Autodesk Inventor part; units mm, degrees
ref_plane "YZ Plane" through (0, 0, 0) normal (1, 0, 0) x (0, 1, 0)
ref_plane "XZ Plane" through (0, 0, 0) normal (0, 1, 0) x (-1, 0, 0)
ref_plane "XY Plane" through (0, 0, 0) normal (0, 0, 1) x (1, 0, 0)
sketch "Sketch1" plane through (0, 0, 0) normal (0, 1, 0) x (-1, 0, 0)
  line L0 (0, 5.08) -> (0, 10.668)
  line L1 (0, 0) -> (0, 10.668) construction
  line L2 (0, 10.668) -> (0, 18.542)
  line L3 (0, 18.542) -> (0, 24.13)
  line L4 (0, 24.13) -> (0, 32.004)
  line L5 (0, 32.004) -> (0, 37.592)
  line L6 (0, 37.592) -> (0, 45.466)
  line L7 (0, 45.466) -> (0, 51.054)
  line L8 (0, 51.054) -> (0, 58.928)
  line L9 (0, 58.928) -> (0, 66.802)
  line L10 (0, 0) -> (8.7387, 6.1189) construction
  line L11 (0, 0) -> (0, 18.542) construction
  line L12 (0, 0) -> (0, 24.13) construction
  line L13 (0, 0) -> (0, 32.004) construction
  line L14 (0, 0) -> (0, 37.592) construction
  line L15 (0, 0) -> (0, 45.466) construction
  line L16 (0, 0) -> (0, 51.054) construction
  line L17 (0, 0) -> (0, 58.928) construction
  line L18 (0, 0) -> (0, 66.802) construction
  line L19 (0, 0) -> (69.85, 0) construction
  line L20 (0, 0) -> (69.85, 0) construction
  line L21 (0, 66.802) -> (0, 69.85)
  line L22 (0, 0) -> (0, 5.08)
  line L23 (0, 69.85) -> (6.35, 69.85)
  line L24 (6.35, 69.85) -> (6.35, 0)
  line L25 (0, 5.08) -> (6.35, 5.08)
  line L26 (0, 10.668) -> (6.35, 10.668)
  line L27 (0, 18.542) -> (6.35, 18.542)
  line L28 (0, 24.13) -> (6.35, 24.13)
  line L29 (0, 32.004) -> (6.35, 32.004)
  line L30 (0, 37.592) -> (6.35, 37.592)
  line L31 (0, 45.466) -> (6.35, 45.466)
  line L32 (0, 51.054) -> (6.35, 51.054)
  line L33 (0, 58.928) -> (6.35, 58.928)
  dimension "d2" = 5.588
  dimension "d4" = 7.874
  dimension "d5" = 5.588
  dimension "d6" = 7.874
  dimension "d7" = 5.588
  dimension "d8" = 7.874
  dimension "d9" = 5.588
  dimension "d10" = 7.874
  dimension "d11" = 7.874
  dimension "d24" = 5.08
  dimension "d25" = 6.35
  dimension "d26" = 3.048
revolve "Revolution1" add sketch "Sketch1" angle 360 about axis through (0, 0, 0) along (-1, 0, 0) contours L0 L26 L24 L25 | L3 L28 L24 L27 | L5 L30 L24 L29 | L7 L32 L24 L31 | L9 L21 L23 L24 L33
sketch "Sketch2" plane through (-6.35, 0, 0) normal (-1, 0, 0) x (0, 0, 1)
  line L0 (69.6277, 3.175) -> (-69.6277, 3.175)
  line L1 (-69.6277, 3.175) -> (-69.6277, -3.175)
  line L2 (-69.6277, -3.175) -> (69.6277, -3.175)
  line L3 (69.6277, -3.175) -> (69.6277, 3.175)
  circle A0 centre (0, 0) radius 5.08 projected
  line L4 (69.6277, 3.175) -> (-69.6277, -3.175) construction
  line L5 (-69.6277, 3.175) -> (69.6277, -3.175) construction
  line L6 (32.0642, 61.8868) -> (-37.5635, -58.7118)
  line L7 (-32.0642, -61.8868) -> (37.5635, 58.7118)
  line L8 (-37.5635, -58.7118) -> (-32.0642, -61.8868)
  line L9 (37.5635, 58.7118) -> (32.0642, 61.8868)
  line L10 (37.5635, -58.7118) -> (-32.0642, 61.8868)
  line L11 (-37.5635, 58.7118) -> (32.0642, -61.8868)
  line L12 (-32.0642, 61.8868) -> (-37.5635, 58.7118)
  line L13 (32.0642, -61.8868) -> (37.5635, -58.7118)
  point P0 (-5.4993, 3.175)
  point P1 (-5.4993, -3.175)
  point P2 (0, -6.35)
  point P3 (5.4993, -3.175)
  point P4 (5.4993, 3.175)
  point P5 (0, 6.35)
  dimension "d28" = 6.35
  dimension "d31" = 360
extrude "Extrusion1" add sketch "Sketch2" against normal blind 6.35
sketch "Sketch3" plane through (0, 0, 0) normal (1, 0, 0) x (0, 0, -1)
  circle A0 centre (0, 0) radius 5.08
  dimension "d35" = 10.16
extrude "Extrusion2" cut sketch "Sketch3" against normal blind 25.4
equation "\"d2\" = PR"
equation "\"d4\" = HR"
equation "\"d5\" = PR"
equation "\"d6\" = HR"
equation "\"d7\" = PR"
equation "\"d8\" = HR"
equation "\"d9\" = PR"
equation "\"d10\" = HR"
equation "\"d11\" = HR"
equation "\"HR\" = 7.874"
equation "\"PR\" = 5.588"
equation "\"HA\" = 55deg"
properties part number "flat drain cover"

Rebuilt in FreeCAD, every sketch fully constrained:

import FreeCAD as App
import Part
import Sketcher
Q = App.Units.Quantity


def add_polygon(sketch, points):
    """Adds a closed chain of lines whose ends are joined by coincident constraints."""
    first, n = sketch.GeometryCount, len(points)
    for a, b in zip(points, points[1:] + points[:1]):
        sketch.addGeometry(Part.LineSegment(App.Vector(*a, 0), App.Vector(*b, 0)), False)
    for i in range(n):
        sketch.addConstraint(Sketcher.Constraint("Coincident", first + i, 2, first + (i + 1) % n, 1))

doc = App.newDocument("Part")
body = doc.addObject("PartDesign::Body", "Body")
body.AllowCompound = True

# Sketch on XZ plane
sketch1 = doc.addObject("Sketcher::SketchObject", "Sketch")
body.addObject(sketch1)
sketch1.AttachmentSupport = (doc.XZ_Plane, [""])
sketch1.MapMode = "FlatFace"
add_polygon(sketch1, [(0, 11), (0, 5), (-6, 5), (-6, 11)])  # lines 0-3
add_polygon(sketch1, [(0, 24), (0, 19), (-6, 19), (-6, 24)])  # lines 4-7
add_polygon(sketch1, [(0, 38), (0, 32), (-6, 32), (-6, 38)])  # lines 8-11
add_polygon(sketch1, [(0, 51), (0, 45), (-6, 45), (-6, 51)])  # lines 12-15
add_polygon(sketch1, [(0, 70), (0, 59), (-6, 59), (-6, 70)])  # lines 16-19
sketch1.addConstraint([
    Sketcher.Constraint("Vertical", 0),
    Sketcher.Constraint("Horizontal", 1),
    Sketcher.Constraint("Vertical", 2),
    Sketcher.Constraint("Horizontal", 3),
    Sketcher.Constraint("Vertical", 4),
    Sketcher.Constraint("Horizontal", 5),
    Sketcher.Constraint("Vertical", 6),
    Sketcher.Constraint("Horizontal", 7),
    Sketcher.Constraint("Vertical", 8),
    Sketcher.Constraint("Horizontal", 9),
    Sketcher.Constraint("Vertical", 10),
    Sketcher.Constraint("Horizontal", 11),
    Sketcher.Constraint("Vertical", 12),
    Sketcher.Constraint("Horizontal", 13),
    Sketcher.Constraint("Vertical", 14),
    Sketcher.Constraint("Horizontal", 15),
    Sketcher.Constraint("Vertical", 16),
    Sketcher.Constraint("Horizontal", 17),
    Sketcher.Constraint("Vertical", 18),
    Sketcher.Constraint("Horizontal", 19),
    Sketcher.Constraint("PointOnObject", 0, 2, -2),
    Sketcher.Constraint("PointOnObject", 4, 2, -2),
    Sketcher.Constraint("PointOnObject", 8, 2, -2),
    Sketcher.Constraint("PointOnObject", 12, 2, -2),
    Sketcher.Constraint("PointOnObject", 16, 2, -2),
    Sketcher.Constraint("Vertical", 2, 2, 5, 2),
    Sketcher.Constraint("Vertical", 6, 2, 9, 2),
    Sketcher.Constraint("Vertical", 10, 2, 13, 2),
    Sketcher.Constraint("Vertical", 14, 2, 17, 2),
    Sketcher.Constraint("Equal", 2, 4),
    Sketcher.Constraint("Equal", 6, 8),
    Sketcher.Constraint("Equal", 10, 12),
    Sketcher.Constraint("DistanceX", 1, 2, 1, 1, Q("0.25 in")),
    Sketcher.Constraint("DistanceY", 0, 2, 0, 1, Q("0.22 in")),
    Sketcher.Constraint("DistanceY", -1, 1, 0, 2, Q("0.2 in")),
    Sketcher.Constraint("DistanceY", 3, 2, 4, 2, Q("0.31 in")),
    Sketcher.Constraint("DistanceY", 7, 2, 8, 2, Q("0.31 in")),
    Sketcher.Constraint("DistanceY", 11, 2, 12, 2, Q("0.31 in")),
    Sketcher.Constraint("DistanceY", 15, 2, 16, 2, Q("0.31 in")),
    Sketcher.Constraint("DistanceY", 16, 2, 16, 1, Q("0.43 in")),
])
revolution = doc.addObject("PartDesign::Revolution", "Revolution")
body.addObject(revolution)
revolution.Profile = sketch1
revolution.ReferenceAxis = (sketch1, ["H_Axis"])
revolution.Angle = 360

# Sketch on YZ plane
sketch2 = doc.addObject("Sketcher::SketchObject", "Sketch001")
body.addObject(sketch2)
sketch2.AttachmentSupport = (doc.YZ_Plane, [""])
sketch2.MapMode = "FlatFace"
sketch2.AttachmentOffset = App.Placement(App.Vector(0, 0, -0.25 * 25.4), App.Rotation())
add_polygon(sketch2, [(-3, 70), (3, 70), (3, 5), (59, 38), (62, 32), (6, 0), (62, -32), (59, -38), (3, -5), (3, -70), (-3, -70), (-3, -5), (-59, -38), (-62, -32), (-6, 0), (-62, 32), (-59, 38), (-3, 5)])  # lines 0-17
sketch2.addConstraint([
    Sketcher.Constraint("Horizontal", 0),
    Sketcher.Constraint("Vertical", 1),
    Sketcher.Constraint("Vertical", 8),
    Sketcher.Constraint("Horizontal", 9),
    Sketcher.Constraint("Vertical", 10),
    Sketcher.Constraint("Vertical", 17),
    Sketcher.Constraint("Symmetric", 0, 2, 9, 2, -1, 1),
    Sketcher.Constraint("Symmetric", 2, 2, 11, 2, -1, 1),
    Sketcher.Constraint("Symmetric", 3, 2, 12, 2, -1, 1),
    Sketcher.Constraint("Symmetric", 4, 2, 13, 2, -1, 1),
    Sketcher.Constraint("Symmetric", 5, 2, 14, 2, -1, 1),
    Sketcher.Constraint("Symmetric", 6, 2, 15, 2, -1, 1),
    Sketcher.Constraint("Symmetric", 7, 2, 16, 2, -1, 1),
    Sketcher.Constraint("Symmetric", 7, 2, 10, 2, -2),
    Sketcher.Constraint("Symmetric", 6, 2, 11, 2, -2),
    Sketcher.Constraint("Symmetric", 5, 2, 12, 2, -2),
    Sketcher.Constraint("PointOnObject", 4, 2, -1),
    Sketcher.Constraint("Perpendicular", 2, 3),
    Sketcher.Constraint("Perpendicular", 3, 4),
    Sketcher.Constraint("Perpendicular", 6, 7),
    Sketcher.Constraint("Equal", 2, 4),
    Sketcher.Constraint("DistanceX", 0, 1, 0, 2, Q("0.25 in")),
    Sketcher.Constraint("Distance", 3, Q("0.25 in")),
    Sketcher.Constraint("DistanceX", -1, 1, 4, 2, Q("0.25 in")),
    Sketcher.Constraint("DistanceY", 1, 2, 1, 1, 64.1284),
    Sketcher.Constraint("DistanceX", -1, 1, 2, 2, Q("2.3115 in")),
])
pad1 = doc.addObject("PartDesign::Pad", "Pad")
body.addObject(pad1)
pad1.Profile = sketch2
pad1.Length = Q("0.25 in")

# Sketch on YZ plane
sketch3 = doc.addObject("Sketcher::SketchObject", "Sketch002")
body.addObject(sketch3)
sketch3.AttachmentSupport = (doc.YZ_Plane, [""])
sketch3.MapMode = "FlatFace"
sketch3.addGeometry(Part.Circle(App.Vector(0, 0, 0), App.Vector(0, 0, 1), 5), False)
sketch3.addConstraint([
    Sketcher.Constraint("Coincident", 0, 3, -1, 1),
    Sketcher.Constraint("Diameter", 0, Q("0.4 in")),
])
pocket1 = doc.addObject("PartDesign::Pocket", "Pocket")
body.addObject(pocket1)
pocket1.Profile = sketch3
pocket1.Length = Q("1 in")

doc.recompute()
